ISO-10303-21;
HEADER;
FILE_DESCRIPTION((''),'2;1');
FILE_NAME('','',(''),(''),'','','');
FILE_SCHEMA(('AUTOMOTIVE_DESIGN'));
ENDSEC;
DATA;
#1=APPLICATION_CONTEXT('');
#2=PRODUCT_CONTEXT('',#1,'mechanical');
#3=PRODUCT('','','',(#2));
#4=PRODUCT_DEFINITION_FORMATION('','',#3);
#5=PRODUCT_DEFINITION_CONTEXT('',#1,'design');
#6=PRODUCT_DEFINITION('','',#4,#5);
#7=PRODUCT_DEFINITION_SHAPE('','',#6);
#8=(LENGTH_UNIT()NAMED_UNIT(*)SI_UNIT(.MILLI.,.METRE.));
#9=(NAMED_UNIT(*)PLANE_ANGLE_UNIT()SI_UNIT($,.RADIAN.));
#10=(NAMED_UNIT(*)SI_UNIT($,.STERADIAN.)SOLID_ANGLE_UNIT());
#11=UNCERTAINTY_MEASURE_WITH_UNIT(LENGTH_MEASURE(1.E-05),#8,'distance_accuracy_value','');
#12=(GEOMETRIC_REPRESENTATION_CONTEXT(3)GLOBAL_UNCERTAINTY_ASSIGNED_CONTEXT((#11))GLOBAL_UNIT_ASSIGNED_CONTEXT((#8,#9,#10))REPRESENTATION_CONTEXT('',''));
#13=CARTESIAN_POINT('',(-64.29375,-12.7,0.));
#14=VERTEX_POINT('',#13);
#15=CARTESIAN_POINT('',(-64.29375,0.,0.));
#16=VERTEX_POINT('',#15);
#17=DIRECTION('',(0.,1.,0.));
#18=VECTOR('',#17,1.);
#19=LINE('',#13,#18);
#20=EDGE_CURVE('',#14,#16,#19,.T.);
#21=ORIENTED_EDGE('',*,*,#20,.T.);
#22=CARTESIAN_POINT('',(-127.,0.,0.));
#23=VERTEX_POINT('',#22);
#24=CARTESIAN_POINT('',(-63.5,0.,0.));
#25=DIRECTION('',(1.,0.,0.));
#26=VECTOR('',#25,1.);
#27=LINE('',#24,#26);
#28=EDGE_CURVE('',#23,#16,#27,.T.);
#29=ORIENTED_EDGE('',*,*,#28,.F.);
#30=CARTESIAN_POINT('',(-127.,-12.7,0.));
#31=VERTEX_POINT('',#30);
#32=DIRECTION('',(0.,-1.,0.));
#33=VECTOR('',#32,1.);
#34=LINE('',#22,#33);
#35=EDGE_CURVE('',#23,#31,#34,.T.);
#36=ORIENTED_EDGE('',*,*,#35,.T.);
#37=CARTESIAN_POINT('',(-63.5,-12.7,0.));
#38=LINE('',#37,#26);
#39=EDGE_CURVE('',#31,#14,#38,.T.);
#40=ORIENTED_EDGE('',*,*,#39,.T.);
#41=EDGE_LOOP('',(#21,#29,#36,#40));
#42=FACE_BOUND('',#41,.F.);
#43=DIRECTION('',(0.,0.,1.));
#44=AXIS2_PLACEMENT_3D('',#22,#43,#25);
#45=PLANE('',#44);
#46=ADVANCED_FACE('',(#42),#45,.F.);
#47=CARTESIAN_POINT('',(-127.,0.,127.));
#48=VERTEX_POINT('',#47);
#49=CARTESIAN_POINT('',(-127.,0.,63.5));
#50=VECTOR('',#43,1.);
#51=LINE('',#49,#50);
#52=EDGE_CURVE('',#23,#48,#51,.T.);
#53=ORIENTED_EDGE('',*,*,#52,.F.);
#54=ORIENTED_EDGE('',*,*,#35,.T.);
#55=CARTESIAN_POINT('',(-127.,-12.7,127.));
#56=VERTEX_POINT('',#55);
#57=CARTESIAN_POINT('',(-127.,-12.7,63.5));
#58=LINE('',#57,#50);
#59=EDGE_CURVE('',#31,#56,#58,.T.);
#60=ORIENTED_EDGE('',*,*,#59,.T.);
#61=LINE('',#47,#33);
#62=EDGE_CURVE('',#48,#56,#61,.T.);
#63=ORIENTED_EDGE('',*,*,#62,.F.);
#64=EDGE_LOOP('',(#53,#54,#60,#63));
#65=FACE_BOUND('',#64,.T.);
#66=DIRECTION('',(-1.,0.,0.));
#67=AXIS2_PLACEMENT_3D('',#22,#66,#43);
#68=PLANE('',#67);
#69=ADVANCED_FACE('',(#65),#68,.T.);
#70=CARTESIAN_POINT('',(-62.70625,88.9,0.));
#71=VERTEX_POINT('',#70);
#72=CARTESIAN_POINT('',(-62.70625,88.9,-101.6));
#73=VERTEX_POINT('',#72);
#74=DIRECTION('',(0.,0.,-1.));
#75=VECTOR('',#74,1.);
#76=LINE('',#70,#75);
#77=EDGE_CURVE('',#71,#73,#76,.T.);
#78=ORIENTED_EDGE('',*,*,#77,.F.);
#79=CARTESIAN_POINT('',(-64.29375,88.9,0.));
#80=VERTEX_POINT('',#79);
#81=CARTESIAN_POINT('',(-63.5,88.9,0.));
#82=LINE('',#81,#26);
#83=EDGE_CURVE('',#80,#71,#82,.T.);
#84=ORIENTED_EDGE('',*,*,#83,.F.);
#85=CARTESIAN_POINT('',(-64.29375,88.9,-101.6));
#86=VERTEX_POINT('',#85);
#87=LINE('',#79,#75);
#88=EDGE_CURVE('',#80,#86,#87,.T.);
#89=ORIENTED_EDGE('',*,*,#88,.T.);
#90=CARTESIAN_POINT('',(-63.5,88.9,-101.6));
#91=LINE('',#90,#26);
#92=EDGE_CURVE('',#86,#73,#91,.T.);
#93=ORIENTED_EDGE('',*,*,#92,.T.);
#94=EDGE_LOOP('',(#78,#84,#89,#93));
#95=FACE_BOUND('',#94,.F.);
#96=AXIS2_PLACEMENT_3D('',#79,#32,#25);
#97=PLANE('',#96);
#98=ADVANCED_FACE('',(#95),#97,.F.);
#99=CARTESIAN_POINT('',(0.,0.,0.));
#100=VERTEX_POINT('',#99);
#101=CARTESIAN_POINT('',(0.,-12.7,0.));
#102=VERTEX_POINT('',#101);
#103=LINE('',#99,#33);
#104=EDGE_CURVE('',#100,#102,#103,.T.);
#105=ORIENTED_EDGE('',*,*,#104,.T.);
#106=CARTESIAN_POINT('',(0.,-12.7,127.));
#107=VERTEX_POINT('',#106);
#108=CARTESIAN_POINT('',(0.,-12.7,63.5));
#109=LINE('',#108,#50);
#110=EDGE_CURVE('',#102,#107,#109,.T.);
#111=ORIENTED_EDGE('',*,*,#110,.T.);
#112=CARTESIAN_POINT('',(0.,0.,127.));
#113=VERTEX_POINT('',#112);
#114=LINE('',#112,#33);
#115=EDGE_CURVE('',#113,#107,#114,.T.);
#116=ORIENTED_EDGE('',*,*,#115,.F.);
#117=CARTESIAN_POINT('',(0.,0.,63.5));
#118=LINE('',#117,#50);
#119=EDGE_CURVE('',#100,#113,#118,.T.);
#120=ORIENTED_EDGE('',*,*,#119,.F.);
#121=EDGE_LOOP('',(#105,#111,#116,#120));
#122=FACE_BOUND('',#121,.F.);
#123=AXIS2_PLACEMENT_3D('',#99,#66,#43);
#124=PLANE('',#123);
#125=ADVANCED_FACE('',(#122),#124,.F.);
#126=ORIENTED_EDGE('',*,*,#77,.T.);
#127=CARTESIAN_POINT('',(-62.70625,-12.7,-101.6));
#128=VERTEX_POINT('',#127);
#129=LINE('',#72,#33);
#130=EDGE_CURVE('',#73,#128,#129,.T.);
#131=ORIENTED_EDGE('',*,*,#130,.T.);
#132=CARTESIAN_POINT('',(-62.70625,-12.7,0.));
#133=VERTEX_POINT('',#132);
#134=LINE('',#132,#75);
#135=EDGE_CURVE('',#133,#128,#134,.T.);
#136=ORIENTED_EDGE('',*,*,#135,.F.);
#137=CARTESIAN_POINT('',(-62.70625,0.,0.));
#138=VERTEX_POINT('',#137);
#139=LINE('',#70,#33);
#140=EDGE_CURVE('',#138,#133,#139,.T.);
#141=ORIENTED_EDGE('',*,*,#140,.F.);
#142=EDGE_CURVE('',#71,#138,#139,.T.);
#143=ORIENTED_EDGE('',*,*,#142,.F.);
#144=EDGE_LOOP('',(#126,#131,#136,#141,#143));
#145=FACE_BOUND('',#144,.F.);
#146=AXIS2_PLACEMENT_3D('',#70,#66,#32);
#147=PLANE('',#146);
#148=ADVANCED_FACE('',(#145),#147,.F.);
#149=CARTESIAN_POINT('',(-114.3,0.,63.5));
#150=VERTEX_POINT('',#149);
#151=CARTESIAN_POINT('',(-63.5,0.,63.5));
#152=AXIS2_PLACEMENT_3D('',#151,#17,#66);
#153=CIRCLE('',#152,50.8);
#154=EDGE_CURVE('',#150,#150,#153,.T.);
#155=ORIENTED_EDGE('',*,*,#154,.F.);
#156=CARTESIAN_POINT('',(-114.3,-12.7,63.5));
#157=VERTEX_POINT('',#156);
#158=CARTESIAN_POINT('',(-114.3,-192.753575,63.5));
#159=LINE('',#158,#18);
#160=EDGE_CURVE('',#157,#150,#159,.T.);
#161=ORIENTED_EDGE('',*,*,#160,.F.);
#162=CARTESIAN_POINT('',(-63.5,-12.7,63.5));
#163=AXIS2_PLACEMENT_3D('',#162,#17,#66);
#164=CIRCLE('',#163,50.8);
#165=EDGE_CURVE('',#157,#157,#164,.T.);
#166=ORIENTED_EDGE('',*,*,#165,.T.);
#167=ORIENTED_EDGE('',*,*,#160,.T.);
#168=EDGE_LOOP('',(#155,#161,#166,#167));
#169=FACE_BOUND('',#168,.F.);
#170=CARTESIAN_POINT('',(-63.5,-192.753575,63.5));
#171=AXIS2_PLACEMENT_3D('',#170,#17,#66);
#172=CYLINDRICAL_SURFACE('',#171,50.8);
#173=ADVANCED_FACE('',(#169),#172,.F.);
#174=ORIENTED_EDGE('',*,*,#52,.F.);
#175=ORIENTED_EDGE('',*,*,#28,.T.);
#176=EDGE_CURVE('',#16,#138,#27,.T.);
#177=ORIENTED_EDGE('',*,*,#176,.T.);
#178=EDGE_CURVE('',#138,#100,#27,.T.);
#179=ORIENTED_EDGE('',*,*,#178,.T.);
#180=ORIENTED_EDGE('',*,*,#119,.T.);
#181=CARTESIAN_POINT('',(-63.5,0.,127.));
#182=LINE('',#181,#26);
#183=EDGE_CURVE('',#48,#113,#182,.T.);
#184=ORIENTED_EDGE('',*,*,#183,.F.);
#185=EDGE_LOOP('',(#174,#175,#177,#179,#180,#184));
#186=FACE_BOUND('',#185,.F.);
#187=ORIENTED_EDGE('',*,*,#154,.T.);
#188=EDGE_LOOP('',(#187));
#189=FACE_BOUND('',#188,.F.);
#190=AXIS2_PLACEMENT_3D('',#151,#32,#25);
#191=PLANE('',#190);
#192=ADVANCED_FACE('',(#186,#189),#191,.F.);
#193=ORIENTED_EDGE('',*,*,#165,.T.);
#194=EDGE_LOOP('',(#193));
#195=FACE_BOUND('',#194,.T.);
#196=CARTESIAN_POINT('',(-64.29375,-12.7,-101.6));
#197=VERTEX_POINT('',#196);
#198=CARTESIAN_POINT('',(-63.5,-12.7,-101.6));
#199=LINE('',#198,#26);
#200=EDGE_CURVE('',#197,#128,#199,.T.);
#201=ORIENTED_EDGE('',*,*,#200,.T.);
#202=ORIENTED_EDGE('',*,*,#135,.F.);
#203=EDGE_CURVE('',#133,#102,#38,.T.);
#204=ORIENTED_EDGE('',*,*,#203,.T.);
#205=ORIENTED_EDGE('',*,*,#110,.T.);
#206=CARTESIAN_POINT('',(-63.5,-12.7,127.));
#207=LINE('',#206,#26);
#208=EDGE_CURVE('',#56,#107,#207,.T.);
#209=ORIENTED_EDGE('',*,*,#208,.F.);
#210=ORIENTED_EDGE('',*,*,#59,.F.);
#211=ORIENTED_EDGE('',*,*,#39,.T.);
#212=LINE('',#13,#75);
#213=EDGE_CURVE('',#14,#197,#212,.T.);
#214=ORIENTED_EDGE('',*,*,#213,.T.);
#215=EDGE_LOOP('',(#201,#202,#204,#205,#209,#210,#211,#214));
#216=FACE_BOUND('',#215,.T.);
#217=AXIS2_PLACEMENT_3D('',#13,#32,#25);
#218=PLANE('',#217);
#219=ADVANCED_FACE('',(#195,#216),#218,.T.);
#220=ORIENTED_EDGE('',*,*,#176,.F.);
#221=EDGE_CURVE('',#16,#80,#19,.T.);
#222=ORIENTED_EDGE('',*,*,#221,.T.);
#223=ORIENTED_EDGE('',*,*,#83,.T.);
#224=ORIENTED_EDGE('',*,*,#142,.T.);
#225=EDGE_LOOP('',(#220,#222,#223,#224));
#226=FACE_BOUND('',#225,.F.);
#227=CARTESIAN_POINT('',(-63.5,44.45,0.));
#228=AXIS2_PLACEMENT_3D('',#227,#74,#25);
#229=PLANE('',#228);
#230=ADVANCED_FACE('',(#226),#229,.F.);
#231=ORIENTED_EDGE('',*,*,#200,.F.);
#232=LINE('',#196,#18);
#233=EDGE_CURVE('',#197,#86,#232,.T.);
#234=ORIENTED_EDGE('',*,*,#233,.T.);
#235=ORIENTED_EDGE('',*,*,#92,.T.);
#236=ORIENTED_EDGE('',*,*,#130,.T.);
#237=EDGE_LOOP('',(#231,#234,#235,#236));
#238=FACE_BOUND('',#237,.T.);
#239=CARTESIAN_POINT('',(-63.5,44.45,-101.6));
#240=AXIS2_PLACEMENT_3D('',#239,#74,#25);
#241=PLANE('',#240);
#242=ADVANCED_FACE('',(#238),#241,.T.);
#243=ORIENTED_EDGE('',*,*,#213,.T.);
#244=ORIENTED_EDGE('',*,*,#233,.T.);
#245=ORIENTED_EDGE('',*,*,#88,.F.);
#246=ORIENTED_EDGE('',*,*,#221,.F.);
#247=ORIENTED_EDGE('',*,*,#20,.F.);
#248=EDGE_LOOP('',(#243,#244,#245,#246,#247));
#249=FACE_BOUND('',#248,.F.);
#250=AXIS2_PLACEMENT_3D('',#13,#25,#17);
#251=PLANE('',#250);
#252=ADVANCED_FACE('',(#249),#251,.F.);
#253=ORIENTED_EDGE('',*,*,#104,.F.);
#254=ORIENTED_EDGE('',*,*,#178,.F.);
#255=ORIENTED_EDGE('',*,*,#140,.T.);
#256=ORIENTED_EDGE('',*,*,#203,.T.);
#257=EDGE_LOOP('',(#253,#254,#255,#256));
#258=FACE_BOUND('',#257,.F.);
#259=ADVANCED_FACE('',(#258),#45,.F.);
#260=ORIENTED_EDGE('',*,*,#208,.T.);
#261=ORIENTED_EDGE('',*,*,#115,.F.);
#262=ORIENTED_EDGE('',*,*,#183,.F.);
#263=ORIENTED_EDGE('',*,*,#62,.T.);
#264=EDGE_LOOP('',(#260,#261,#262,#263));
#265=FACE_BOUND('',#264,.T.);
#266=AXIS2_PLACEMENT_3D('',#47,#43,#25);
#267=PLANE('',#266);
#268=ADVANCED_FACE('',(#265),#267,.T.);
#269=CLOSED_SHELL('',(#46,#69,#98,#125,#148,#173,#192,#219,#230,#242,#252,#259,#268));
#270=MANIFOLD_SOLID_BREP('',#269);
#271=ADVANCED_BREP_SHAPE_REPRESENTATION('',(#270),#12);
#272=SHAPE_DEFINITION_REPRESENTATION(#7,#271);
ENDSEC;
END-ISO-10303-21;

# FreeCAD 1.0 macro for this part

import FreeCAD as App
import Part
import Sketcher
Q = App.Units.Quantity


def add_polygon(sketch, points):
    """Adds a closed chain of lines whose ends are joined by coincident constraints."""
    first, n = sketch.GeometryCount, len(points)
    for a, b in zip(points, points[1:] + points[:1]):
        sketch.addGeometry(Part.LineSegment(App.Vector(*a, 0), App.Vector(*b, 0)), False)
    for i in range(n):
        sketch.addConstraint(Sketcher.Constraint("Coincident", first + i, 2, first + (i + 1) % n, 1))

doc = App.newDocument("Part")
body = doc.addObject("PartDesign::Body", "Body")

sketch1 = body.newObject("Sketcher::SketchObject", "Sketch")
sketch1.AttachmentSupport = (doc.getObject("XZ_Plane"), [""])
sketch1.MapMode = "FlatFace"
add_polygon(sketch1, [(-127, 127), (-127, 0), (0, 0), (0, 127)])
sketch1.addConstraint(Sketcher.Constraint("Vertical", 0))
sketch1.addConstraint(Sketcher.Constraint("Horizontal", 1))
sketch1.addConstraint(Sketcher.Constraint("Vertical", 2))
sketch1.addConstraint(Sketcher.Constraint("Horizontal", 3))
sketch1.addConstraint(Sketcher.Constraint("Coincident", 1, 2, -1, 1))
sketch1.addConstraint(Sketcher.Constraint("Equal", 3, 0))
sketch1.addConstraint(Sketcher.Constraint("DistanceX", 1, 1, 1, 2, Q("5 in")))
pad1 = body.newObject("PartDesign::Pad", "Pad")
pad1.Profile = sketch1
pad1.Length = Q("0.5 in")

sketch2 = body.newObject("Sketcher::SketchObject", "Sketch001")
sketch2.AttachmentSupport = (doc.getObject("XZ_Plane"), [""])
sketch2.MapMode = "FlatFace"
sketch2.AttachmentOffset = App.Placement(App.Vector(0, 0, 0.5 * 25.4), App.Rotation())
sketch2.addGeometry(Part.Circle(App.Vector(-63.5, 63.5, 0), App.Vector(0, 0, 1), 50.8), False)
sketch2.addConstraint(Sketcher.Constraint("Diameter", 0, Q("4 in")))
sketch2.addConstraint(Sketcher.Constraint("DistanceX", 0, 3, -1, 1, Q("2.5 in")))
sketch2.addConstraint(Sketcher.Constraint("DistanceY", -1, 1, 0, 3, Q("2.5 in")))
doc.recompute()
hole = body.newObject("PartDesign::Hole", "Hole")
hole.Profile = sketch2
hole.ThreadType = "None"
hole.Diameter = Q("4 in")
hole.DepthType = "ThroughAll"

sketch3 = body.newObject("Sketcher::SketchObject", "Sketch002")
sketch3.AttachmentSupport = (doc.getObject("XY_Plane"), [""])
sketch3.MapMode = "FlatFace"
add_polygon(sketch3, [(-64.29375, 88.9), (-62.70625, 88.9), (-62.70625, -12.7), (-64.29375, -12.7)])
sketch3.addConstraint(Sketcher.Constraint("Horizontal", 0))
sketch3.addConstraint(Sketcher.Constraint("Vertical", 1))
sketch3.addConstraint(Sketcher.Constraint("Horizontal", 2))
sketch3.addConstraint(Sketcher.Constraint("Vertical", 3))
sketch3.addConstraint(Sketcher.Constraint("DistanceY", 1, 2, 1, 1, Q("4 in")))
sketch3.addConstraint(Sketcher.Constraint("DistanceY", -1, 1, 0, 2, Q("3.5 in")))
sketch3.addConstraint(Sketcher.Constraint("DistanceX", 0, 1, 0, 2, Q("0.0625 in")))
sketch3.addConstraint(Sketcher.Constraint("DistanceX", 0, 2, -1, 1, Q("2.46875 in")))
pad2 = body.newObject("PartDesign::Pad", "Pad001")
pad2.Profile = sketch3
pad2.Length = Q("4 in")
pad2.Reversed = True

doc.recompute()
